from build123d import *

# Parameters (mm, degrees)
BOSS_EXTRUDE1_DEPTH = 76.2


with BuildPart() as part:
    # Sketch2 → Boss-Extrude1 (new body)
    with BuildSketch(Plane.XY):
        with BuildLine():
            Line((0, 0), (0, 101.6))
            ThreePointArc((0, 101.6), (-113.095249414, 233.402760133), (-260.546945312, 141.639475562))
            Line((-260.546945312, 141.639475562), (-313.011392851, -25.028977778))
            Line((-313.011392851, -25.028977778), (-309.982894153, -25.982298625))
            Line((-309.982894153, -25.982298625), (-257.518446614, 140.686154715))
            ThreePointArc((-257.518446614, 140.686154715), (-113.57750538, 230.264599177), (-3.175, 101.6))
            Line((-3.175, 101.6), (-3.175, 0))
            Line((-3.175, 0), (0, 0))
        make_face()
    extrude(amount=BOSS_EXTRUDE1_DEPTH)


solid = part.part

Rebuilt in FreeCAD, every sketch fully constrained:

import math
import FreeCAD as App
import Part
import Sketcher
Q = App.Units.Quantity

doc = App.newDocument("Part")
body = doc.addObject("PartDesign::Body", "Body")

# Sketch on XY plane
sketch1 = body.newObject("Sketcher::SketchObject", "Sketch")
sketch1.AttachmentSupport = (doc.getObject("XY_Plane"), [""])
sketch1.MapMode = "FlatFace"
sketch1.addGeometry(Part.LineSegment(App.Vector(0, 0, 0), App.Vector(0, 101.6, 0)), False)
sketch1.addGeometry(Part.ArcOfCircle(Part.Circle(App.Vector(-133.3, 101.6, 0), App.Vector(0, 0, 1), 133.3), math.radians(0), math.radians(163)), False)
sketch1.addGeometry(Part.LineSegment(App.Vector(-260.5, 141.6, 0), App.Vector(-313, -25, 0)), False)
sketch1.addGeometry(Part.LineSegment(App.Vector(-313, -25, 0), App.Vector(-310, -26, 0)), False)
sketch1.addGeometry(Part.LineSegment(App.Vector(-310, -26, 0), App.Vector(-257.5, 140.7, 0)), False)
sketch1.addGeometry(Part.ArcOfCircle(Part.Circle(App.Vector(-133.3, 101.6, 0), App.Vector(0, 0, 1), 130.2), math.radians(0), math.radians(163)), False)
sketch1.addGeometry(Part.LineSegment(App.Vector(-3.2, 101.6, 0), App.Vector(-3.2, 0, 0)), False)
sketch1.addGeometry(Part.LineSegment(App.Vector(-3.2, 0, 0), App.Vector(0, 0, 0)), False)
sketch1.addConstraint(Sketcher.Constraint("Tangent", 0, 2, 1, 1))
sketch1.addConstraint(Sketcher.Constraint("Tangent", 1, 2, 2, 1))
sketch1.addConstraint(Sketcher.Constraint("Coincident", 2, 2, 3, 1))
sketch1.addConstraint(Sketcher.Constraint("Coincident", 3, 2, 4, 1))
sketch1.addConstraint(Sketcher.Constraint("Tangent", 4, 2, 5, 2))
sketch1.addConstraint(Sketcher.Constraint("Tangent", 5, 1, 6, 1))
sketch1.addConstraint(Sketcher.Constraint("Coincident", 6, 2, 7, 1))
sketch1.addConstraint(Sketcher.Constraint("Coincident", 7, 2, 0, 1))
sketch1.addConstraint(Sketcher.Constraint("Vertical", 0))
sketch1.addConstraint(Sketcher.Constraint("Vertical", 6))
sketch1.addConstraint(Sketcher.Constraint("Horizontal", 7))
sketch1.addConstraint(Sketcher.Constraint("Coincident", 7, 2, -1, 1))
sketch1.addConstraint(Sketcher.Constraint("Coincident", 5, 3, 1, 3))
sketch1.addConstraint(Sketcher.Constraint("Perpendicular", 2, 3))
sketch1.addConstraint(Sketcher.Constraint("Perpendicular", 3, 4))
sketch1.addConstraint(Sketcher.Constraint("DistanceY", 0, 1, 0, 2, Q("4 in")))
sketch1.addConstraint(Sketcher.Constraint("Radius", 1, Q("5.25 in")))
sketch1.addConstraint(Sketcher.Constraint("Radius", 5, Q("5.125 in")))
sketch1.addConstraint(Sketcher.Constraint("DistanceY", 3, 2, -1, 1, Q("25.982299 mm")))
sketch1.addConstraint(Sketcher.Constraint("Distance", 2, Q("174.730912 mm")))
pad1 = body.newObject("PartDesign::Pad", "Pad")
pad1.Profile = sketch1
pad1.Length = Q("3 in")

doc.recompute()
